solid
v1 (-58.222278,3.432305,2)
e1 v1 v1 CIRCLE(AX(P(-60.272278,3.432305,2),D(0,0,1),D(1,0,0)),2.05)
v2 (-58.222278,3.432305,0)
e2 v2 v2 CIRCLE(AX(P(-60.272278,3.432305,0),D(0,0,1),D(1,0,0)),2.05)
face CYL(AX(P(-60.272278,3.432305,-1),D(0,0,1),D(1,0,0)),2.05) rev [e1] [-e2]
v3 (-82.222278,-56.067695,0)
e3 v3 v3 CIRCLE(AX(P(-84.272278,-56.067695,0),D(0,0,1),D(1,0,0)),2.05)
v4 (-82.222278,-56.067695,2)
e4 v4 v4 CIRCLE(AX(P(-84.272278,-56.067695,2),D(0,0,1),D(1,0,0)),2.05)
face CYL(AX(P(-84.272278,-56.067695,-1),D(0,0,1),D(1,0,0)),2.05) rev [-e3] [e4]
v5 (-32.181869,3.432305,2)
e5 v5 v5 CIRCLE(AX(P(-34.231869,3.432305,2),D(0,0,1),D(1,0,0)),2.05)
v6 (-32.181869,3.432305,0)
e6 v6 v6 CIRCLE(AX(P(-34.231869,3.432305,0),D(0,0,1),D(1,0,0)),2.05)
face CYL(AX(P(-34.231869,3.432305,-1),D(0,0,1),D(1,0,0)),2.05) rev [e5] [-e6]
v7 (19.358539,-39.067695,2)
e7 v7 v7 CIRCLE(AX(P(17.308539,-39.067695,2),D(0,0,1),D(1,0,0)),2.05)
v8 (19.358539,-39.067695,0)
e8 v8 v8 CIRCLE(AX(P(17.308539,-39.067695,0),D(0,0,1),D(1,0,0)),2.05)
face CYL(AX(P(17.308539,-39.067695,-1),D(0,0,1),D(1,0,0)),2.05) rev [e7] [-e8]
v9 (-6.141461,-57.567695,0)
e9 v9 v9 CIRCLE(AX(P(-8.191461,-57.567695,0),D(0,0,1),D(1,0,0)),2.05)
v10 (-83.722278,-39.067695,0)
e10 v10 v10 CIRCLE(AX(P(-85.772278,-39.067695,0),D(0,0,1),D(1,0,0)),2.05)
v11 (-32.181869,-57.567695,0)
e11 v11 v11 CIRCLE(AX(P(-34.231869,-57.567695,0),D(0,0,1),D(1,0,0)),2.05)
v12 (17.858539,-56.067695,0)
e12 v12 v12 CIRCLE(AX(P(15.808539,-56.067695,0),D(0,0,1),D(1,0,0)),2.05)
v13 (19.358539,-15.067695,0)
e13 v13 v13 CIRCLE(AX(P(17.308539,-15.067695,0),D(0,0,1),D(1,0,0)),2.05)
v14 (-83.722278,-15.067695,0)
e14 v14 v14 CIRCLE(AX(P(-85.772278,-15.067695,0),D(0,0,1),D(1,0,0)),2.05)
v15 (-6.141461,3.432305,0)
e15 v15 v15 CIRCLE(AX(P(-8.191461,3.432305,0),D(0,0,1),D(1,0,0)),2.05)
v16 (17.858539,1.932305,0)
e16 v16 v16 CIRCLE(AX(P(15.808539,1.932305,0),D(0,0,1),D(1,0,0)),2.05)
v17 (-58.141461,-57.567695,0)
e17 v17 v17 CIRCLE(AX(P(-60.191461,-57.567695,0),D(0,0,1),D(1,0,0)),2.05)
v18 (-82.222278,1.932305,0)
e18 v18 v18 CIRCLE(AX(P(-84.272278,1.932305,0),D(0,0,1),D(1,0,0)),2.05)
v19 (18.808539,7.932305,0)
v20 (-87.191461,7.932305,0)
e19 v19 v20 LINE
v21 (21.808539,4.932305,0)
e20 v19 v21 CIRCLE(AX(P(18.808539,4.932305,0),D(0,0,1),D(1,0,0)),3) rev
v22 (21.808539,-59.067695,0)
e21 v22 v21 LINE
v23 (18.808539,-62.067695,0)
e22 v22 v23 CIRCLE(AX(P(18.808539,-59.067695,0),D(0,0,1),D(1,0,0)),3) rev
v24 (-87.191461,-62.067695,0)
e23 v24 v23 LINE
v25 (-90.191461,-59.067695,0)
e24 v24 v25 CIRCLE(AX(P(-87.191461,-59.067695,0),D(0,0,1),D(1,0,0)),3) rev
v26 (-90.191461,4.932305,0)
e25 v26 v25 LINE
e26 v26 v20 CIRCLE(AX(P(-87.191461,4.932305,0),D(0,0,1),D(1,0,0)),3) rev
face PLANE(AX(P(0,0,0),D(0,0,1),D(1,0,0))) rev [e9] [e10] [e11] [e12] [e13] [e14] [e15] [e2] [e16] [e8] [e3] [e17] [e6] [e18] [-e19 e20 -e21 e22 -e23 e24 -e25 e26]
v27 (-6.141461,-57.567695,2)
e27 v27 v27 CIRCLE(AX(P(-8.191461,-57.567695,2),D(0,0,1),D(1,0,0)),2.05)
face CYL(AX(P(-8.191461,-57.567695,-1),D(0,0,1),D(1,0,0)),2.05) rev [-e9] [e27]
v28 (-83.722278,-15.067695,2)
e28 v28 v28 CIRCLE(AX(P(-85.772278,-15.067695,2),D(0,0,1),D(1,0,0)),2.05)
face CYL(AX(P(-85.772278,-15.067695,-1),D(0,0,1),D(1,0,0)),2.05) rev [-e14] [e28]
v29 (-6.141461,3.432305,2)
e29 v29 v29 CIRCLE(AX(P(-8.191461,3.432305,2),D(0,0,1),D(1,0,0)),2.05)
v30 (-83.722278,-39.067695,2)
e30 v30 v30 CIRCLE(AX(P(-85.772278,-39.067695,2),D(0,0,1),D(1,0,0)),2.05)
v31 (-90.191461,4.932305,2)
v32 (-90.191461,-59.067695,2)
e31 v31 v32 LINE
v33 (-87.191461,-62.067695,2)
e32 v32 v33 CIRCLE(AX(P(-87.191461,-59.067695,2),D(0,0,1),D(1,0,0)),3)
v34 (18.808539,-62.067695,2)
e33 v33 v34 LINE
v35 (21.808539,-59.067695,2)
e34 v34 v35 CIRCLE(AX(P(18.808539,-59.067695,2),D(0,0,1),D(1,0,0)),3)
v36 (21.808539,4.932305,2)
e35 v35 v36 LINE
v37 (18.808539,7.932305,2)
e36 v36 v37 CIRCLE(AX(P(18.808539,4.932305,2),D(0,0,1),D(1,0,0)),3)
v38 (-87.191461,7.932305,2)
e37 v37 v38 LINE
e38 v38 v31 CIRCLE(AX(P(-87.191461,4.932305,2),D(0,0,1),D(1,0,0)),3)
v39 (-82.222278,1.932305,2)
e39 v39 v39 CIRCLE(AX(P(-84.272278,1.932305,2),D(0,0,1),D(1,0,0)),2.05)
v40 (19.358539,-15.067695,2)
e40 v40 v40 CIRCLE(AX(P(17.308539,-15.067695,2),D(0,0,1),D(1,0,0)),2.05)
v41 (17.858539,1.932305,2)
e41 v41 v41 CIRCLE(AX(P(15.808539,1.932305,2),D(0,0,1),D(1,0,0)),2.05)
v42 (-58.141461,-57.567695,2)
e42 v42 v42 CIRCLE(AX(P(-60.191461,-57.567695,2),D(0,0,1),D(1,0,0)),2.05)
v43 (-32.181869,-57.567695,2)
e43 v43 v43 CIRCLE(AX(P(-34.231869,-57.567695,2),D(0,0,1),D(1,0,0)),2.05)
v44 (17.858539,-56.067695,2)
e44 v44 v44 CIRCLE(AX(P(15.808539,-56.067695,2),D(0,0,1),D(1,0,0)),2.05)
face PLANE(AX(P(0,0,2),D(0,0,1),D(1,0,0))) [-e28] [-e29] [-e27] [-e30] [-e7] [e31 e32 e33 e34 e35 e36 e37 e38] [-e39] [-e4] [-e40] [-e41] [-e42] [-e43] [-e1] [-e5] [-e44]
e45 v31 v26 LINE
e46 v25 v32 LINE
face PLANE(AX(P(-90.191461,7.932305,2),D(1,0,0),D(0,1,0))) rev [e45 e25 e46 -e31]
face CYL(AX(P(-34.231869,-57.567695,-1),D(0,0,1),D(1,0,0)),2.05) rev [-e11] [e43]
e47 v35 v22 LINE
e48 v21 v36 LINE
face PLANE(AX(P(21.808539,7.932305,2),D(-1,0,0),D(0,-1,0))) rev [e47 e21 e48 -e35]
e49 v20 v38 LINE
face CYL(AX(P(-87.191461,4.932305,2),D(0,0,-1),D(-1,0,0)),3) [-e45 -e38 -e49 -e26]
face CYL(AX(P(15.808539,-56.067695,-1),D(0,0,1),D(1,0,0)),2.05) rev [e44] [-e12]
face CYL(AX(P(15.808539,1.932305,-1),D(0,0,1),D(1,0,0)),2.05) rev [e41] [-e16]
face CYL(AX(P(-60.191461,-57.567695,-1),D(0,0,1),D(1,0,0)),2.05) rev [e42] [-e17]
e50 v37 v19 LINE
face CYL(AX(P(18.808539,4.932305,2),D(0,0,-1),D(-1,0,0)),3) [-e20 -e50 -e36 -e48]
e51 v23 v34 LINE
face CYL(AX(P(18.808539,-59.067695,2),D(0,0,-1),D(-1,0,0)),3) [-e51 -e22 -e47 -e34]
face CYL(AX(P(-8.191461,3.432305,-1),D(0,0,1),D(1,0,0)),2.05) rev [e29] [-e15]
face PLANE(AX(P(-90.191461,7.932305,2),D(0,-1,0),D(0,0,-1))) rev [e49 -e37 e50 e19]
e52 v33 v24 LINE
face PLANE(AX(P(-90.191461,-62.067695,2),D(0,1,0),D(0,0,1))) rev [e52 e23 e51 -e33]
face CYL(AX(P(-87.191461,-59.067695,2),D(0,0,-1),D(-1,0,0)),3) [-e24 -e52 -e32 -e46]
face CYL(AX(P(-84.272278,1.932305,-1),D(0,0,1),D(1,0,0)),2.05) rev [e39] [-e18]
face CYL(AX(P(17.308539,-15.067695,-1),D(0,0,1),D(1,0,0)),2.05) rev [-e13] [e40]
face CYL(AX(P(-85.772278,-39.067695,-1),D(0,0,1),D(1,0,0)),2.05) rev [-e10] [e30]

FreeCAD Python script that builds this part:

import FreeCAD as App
import Part
import Sketcher
from FreeCAD import Vector
Q = App.Units.Quantity


def edges_at(feature, points):
    """Names of the edges that pass closest to the given points."""
    edges = feature.Shape.Edges
    near = lambda p: min(range(len(edges)), key=lambda i: edges[i].distToShape(Part.Vertex(*p))[0])
    return sorted({f"Edge{near(p) + 1}" for p in points})


def add_polygon(sketch, points):
    """Adds a closed chain of lines whose ends are joined by coincident constraints."""
    first, n = sketch.GeometryCount, len(points)
    for a, b in zip(points, points[1:] + points[:1]):
        sketch.addGeometry(Part.LineSegment(App.Vector(*a, 0), App.Vector(*b, 0)), False)
    for i in range(n):
        sketch.addConstraint(Sketcher.Constraint("Coincident", first + i, 2, first + (i + 1) % n, 1))

doc = App.newDocument("Part")
body = doc.addObject("PartDesign::Body", "Body")

# Sketch on XY plane
sketch1 = body.newObject("Sketcher::SketchObject", "Sketch")
sketch1.AttachmentSupport = (doc.getObject("XY_Plane"), [""])
sketch1.MapMode = "FlatFace"
add_polygon(sketch1, [(-90.191461, 7.932305), (-90.191461, -62.067695), (21.808539, -62.067695), (21.808539, 7.932305)])  # lines 0-3
sketch1.addConstraint([
    Sketcher.Constraint("Vertical", 0),
    Sketcher.Constraint("Horizontal", 1),
    Sketcher.Constraint("Vertical", 2),
    Sketcher.Constraint("Horizontal", 3),
    Sketcher.Constraint("DistanceX", 1, 1, 1, 2, Q("112 mm")),
    Sketcher.Constraint("DistanceY", 0, 2, 0, 1, Q("70 mm")),
    Sketcher.Constraint("DistanceX", 0, 2, -1, 1, Q("90.191461 mm")),
    Sketcher.Constraint("DistanceY", 0, 2, -1, 1, Q("62.067695 mm")),
])
pad1 = body.newObject("PartDesign::Pad", "Pad")
pad1.Profile = sketch1
pad1.Length = 2
doc.recompute()

fillet = body.newObject("PartDesign::Fillet", "Fillet")
fillet.Base = (pad1, edges_at(pad1, [
    (-90.191, 7.932, 1),
    (21.809, 7.932, 1),
    (21.809, -62.068, 1),
    (-90.191, -62.068, 1),
]))
fillet.Radius = 3

# Sketch on XY plane
sketch2 = body.newObject("Sketcher::SketchObject", "Sketch001")
sketch2.AttachmentSupport = (doc.getObject("XY_Plane"), [""])
sketch2.MapMode = "FlatFace"
sketch2.AttachmentOffset = App.Placement(Vector(0, 0, 2), App.Rotation())
sketch2.addGeometry([
    Part.Circle(Vector(-84.272278, -56.067695, 0), Vector(0, 0, 1), 2.05),  # 0
    Part.Circle(Vector(-85.772278, -39.067695, 0), Vector(0, 0, 1), 2.05),  # 1
    Part.Circle(Vector(-85.772278, -15.067695, 0), Vector(0, 0, 1), 2.05),  # 2
    Part.Circle(Vector(-84.272278, 1.932305, 0), Vector(0, 0, 1), 2.05),  # 3
    Part.Circle(Vector(-60.272278, 3.432305, 0), Vector(0, 0, 1), 2.05),  # 4
    Part.Circle(Vector(-60.191461, -57.567695, 0), Vector(0, 0, 1), 2.05),  # 5
    Part.Circle(Vector(-34.231869, -57.567695, 0), Vector(0, 0, 1), 2.05),  # 6
    Part.Circle(Vector(-34.231869, 3.432305, 0), Vector(0, 0, 1), 2.05),  # 7
    Part.Circle(Vector(-8.191461, 3.432305, 0), Vector(0, 0, 1), 2.05),  # 8
    Part.Circle(Vector(-8.191461, -57.567695, 0), Vector(0, 0, 1), 2.05),  # 9
    Part.Circle(Vector(15.808539, -56.067695, 0), Vector(0, 0, 1), 2.05),  # 10
    Part.Circle(Vector(17.308539, -39.067695, 0), Vector(0, 0, 1), 2.05),  # 11
    Part.Circle(Vector(17.308539, -15.067695, 0), Vector(0, 0, 1), 2.05),  # 12
    Part.Circle(Vector(15.808539, 1.932305, 0), Vector(0, 0, 1), 2.05),  # 13
], False)
sketch2.addConstraint([
    Sketcher.Constraint("Equal", 0, 1),
    Sketcher.Constraint("Equal", 1, 2),
    Sketcher.Constraint("Equal", 2, 3),
    Sketcher.Constraint("Equal", 3, 4),
    Sketcher.Constraint("Equal", 4, 5),
    Sketcher.Constraint("Equal", 5, 6),
    Sketcher.Constraint("Equal", 6, 7),
    Sketcher.Constraint("Equal", 7, 8),
    Sketcher.Constraint("Equal", 8, 9),
    Sketcher.Constraint("Equal", 9, 10),
    Sketcher.Constraint("Equal", 10, 11),
    Sketcher.Constraint("Equal", 11, 12),
    Sketcher.Constraint("Equal", 12, 13),
    Sketcher.Constraint("Horizontal", 5, 3, 6, 3),
    Sketcher.Constraint("Horizontal", 4, 3, 7, 3),
    Sketcher.Constraint("Horizontal", 7, 3, 8, 3),
    Sketcher.Constraint("Horizontal", 6, 3, 9, 3),
    Sketcher.Constraint("Horizontal", 0, 3, 10, 3),
    Sketcher.Constraint("Horizontal", 1, 3, 11, 3),
    Sketcher.Constraint("Horizontal", 2, 3, 12, 3),
    Sketcher.Constraint("Horizontal", 3, 3, 13, 3),
    Sketcher.Constraint("Vertical", 1, 3, 2, 3),
    Sketcher.Constraint("Vertical", 0, 3, 3, 3),
    Sketcher.Constraint("Vertical", 6, 3, 7, 3),
    Sketcher.Constraint("Vertical", 8, 3, 9, 3),
    Sketcher.Constraint("Vertical", 11, 3, 12, 3),
    Sketcher.Constraint("Vertical", 10, 3, 13, 3),
    Sketcher.Constraint("Diameter", 0, Q("4.1 mm")),
    Sketcher.Constraint("DistanceY", 0, 3, 1, 3, Q("17 mm")),
    Sketcher.Constraint("DistanceY", 1, 3, 2, 3, Q("24 mm")),
    Sketcher.Constraint("DistanceY", 2, 3, 3, 3, Q("17 mm")),
    Sketcher.Constraint("DistanceX", 3, 3, 4, 3, Q("24 mm")),
    Sketcher.Constraint("DistanceY", 5, 3, 4, 3, Q("61 mm")),
    Sketcher.Constraint("DistanceX", 5, 3, 9, 3, Q("52 mm")),
    Sketcher.Constraint("DistanceX", 9, 3, 10, 3, Q("24 mm")),
    Sketcher.Constraint("DistanceX", 1, 3, 0, 3, Q("1.5 mm")),
    Sketcher.Constraint("DistanceY", 3, 3, 4, 3, Q("1.5 mm")),
    Sketcher.Constraint("DistanceX", 10, 3, 11, 3, Q("1.5 mm")),
    Sketcher.Constraint("DistanceX", 5, 3, -1, 1, Q("60.191461 mm")),
    Sketcher.Constraint("DistanceX", 6, 3, -1, 1, Q("34.231869 mm")),
    Sketcher.Constraint("DistanceX", 0, 3, 6, 3, Q("50.040409 mm")),
    Sketcher.Constraint("DistanceY", 0, 3, -1, 1, Q("56.067695 mm")),
])
pocket1 = body.newObject("PartDesign::Pocket", "Pocket")
pocket1.Profile = sketch2
pocket1.Length = 3

doc.recompute()
